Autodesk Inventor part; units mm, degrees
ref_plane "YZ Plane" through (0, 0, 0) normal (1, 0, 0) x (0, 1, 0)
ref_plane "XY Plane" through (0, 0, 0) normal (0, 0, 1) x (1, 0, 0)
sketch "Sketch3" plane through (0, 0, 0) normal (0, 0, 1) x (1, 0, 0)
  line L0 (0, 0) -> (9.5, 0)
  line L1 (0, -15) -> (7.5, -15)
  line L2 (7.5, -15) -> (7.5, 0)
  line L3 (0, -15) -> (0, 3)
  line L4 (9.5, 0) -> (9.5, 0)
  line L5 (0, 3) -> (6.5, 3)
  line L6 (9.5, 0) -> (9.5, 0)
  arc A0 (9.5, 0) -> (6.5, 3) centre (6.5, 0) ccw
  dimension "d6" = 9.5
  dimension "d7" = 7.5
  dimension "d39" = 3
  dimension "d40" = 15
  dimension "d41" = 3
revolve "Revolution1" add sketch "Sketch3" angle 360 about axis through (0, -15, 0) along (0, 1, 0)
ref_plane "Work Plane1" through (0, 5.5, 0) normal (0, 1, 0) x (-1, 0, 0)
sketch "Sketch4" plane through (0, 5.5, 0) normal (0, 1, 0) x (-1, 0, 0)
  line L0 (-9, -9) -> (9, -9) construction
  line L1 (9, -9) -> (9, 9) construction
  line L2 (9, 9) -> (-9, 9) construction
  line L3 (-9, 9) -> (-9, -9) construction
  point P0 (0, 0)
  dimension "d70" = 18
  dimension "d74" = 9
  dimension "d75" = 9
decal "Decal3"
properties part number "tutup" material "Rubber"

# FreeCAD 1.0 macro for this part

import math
import FreeCAD as App
import Part
import Sketcher

doc = App.newDocument("Part")
body = doc.addObject("PartDesign::Body", "Body")

sketch1 = doc.addObject("Sketcher::SketchObject", "Sketch")
body.addObject(sketch1)
sketch1.AttachmentSupport = (doc.XY_Plane, [""])
sketch1.MapMode = "FlatFace"
sketch1.addGeometry(Part.LineSegment(App.Vector(0, 3, 0), App.Vector(0, -15, 0)), False)
sketch1.addGeometry(Part.LineSegment(App.Vector(0, -15, 0), App.Vector(7.5, -15, 0)), False)
sketch1.addGeometry(Part.LineSegment(App.Vector(7.5, -15, 0), App.Vector(7.5, 0, 0)), False)
sketch1.addGeometry(Part.LineSegment(App.Vector(7.5, 0, 0), App.Vector(9.5, 0, 0)), False)
sketch1.addGeometry(Part.ArcOfCircle(Part.Circle(App.Vector(6.5, 0, 0), App.Vector(0, 0, 1), 3), math.radians(0), math.radians(90)), False)
sketch1.addGeometry(Part.LineSegment(App.Vector(6.5, 3, 0), App.Vector(0, 3, 0)), False)
sketch1.addConstraint(Sketcher.Constraint("Coincident", 0, 2, 1, 1))
sketch1.addConstraint(Sketcher.Constraint("Coincident", 1, 2, 2, 1))
sketch1.addConstraint(Sketcher.Constraint("Coincident", 2, 2, 3, 1))
sketch1.addConstraint(Sketcher.Constraint("Coincident", 3, 2, 4, 1))
sketch1.addConstraint(Sketcher.Constraint("Tangent", 4, 2, 5, 1))
sketch1.addConstraint(Sketcher.Constraint("Coincident", 5, 2, 0, 1))
sketch1.addConstraint(Sketcher.Constraint("Vertical", 0))
sketch1.addConstraint(Sketcher.Constraint("Horizontal", 1))
sketch1.addConstraint(Sketcher.Constraint("Vertical", 2))
sketch1.addConstraint(Sketcher.Constraint("Horizontal", 3))
sketch1.addConstraint(Sketcher.Constraint("Horizontal", 5))
sketch1.addConstraint(Sketcher.Constraint("PointOnObject", 4, 3, -1))
sketch1.addConstraint(Sketcher.Constraint("PointOnObject", 0, 2, -2))
sketch1.addConstraint(Sketcher.Constraint("PointOnObject", 2, 2, -1))
sketch1.addConstraint(Sketcher.Constraint("Radius", 4, 3.0))
sketch1.addConstraint(Sketcher.Constraint("DistanceY", 2, 1, 2, 2, 15.0))
sketch1.addConstraint(Sketcher.Constraint("DistanceX", 1, 1, 1, 2, 7.5))
sketch1.addConstraint(Sketcher.Constraint("DistanceX", -1, 1, 3, 2, 9.5))
revolution = doc.addObject("PartDesign::Revolution", "Revolution")
body.addObject(revolution)
revolution.Profile = sketch1
revolution.ReferenceAxis = (sketch1, ["V_Axis"])
revolution.Angle = 360

doc.recompute()
